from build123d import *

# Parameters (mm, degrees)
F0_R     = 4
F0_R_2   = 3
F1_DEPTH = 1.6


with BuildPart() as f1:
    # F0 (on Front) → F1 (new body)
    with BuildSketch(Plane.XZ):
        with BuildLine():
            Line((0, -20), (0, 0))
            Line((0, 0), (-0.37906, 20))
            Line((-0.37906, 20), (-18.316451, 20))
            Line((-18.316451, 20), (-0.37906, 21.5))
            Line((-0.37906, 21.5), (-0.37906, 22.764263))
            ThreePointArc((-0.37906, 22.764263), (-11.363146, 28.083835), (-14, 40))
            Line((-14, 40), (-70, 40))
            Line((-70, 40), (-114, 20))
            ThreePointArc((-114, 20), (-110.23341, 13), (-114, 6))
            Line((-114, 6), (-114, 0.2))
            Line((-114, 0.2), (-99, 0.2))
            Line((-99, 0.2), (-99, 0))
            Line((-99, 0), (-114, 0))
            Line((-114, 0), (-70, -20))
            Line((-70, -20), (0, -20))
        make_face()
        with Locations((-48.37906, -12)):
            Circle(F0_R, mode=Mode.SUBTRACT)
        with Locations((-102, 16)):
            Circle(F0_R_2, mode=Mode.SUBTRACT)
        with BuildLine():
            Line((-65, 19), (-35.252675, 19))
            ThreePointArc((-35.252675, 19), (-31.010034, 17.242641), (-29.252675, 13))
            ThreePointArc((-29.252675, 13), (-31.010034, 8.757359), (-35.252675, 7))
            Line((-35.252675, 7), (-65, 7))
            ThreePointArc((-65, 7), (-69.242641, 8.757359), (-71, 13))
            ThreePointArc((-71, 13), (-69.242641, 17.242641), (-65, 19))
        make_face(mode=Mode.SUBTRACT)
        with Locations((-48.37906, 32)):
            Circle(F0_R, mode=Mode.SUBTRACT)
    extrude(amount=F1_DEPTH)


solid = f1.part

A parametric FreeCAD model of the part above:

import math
import FreeCAD as App
import Part
import Sketcher

V = App.Vector
Q = App.Units.Quantity

doc = App.newDocument("Part")
body = doc.addObject("PartDesign::Body", "Body")

sketch1 = body.newObject("Sketcher::SketchObject", "Sketch")
sketch1.AttachmentSupport = (doc.getObject("XZ_Plane"), [""])
sketch1.MapMode = "FlatFace"
sketch1.addGeometry(Part.LineSegment(V(0, -20, 0), V(0, 0, 0)), False)
sketch1.addGeometry(Part.LineSegment(V(0, 0, 0), V(-0.38, 20, 0)), False)
sketch1.addGeometry(Part.LineSegment(V(-0.38, 20, 0), V(-18.32, 20, 0)), False)
sketch1.addGeometry(Part.LineSegment(V(-18.32, 20, 0), V(-0.38, 21.5, 0)), False)
sketch1.addGeometry(Part.LineSegment(V(-0.38, 21.5, 0), V(-0.38, 22.76, 0)), False)
sketch1.addGeometry(Part.ArcOfCircle(Part.Circle(V(-0.38, 36.76, 0), V(0, 0, 1), 14), math.radians(167), math.radians(270)), False)
sketch1.addGeometry(Part.LineSegment(V(-14, 40, 0), V(-70, 40, 0)), False)
sketch1.addGeometry(Part.LineSegment(V(-70, 40, 0), V(-114, 20, 0)), False)
sketch1.addGeometry(Part.ArcOfCircle(Part.Circle(V(-118.62, 13, 0), V(0, 0, 1), 8.39), math.radians(-57), math.radians(57)), False)
sketch1.addGeometry(Part.LineSegment(V(-114, 6, 0), V(-114, 0.2, 0)), False)
sketch1.addGeometry(Part.LineSegment(V(-114, 0.2, 0), V(-99, 0.2, 0)), False)
sketch1.addGeometry(Part.LineSegment(V(-99, 0.2, 0), V(-99, 0, 0)), False)
sketch1.addGeometry(Part.LineSegment(V(-99, 0, 0), V(-114, 0, 0)), False)
sketch1.addGeometry(Part.LineSegment(V(-114, 0, 0), V(-70, -20, 0)), False)
sketch1.addGeometry(Part.LineSegment(V(-70, -20, 0), V(0, -20, 0)), False)
sketch1.addGeometry(Part.Circle(V(-48.38, -12, 0), V(0, 0, 1), 4), False)
sketch1.addGeometry(Part.Circle(V(-102, 16, 0), V(0, 0, 1), 3), False)
sketch1.addGeometry(Part.ArcOfCircle(Part.Circle(V(-65, 13, 0), V(0, 0, 1), 6), math.radians(90), math.radians(180)), False)
sketch1.addGeometry(Part.LineSegment(V(-65, 19, 0), V(-35.25, 19, 0)), False)
sketch1.addGeometry(Part.ArcOfCircle(Part.Circle(V(-35.25, 13, 0), V(0, 0, 1), 6), math.radians(0), math.radians(90)), False)
sketch1.addGeometry(Part.ArcOfCircle(Part.Circle(V(-35.25, 13, 0), V(0, 0, 1), 6), math.radians(-90), math.radians(0)), False)
sketch1.addGeometry(Part.LineSegment(V(-35.25, 7, 0), V(-65, 7, 0)), False)
sketch1.addGeometry(Part.ArcOfCircle(Part.Circle(V(-65, 13, 0), V(0, 0, 1), 6), math.radians(180), math.radians(270)), False)
sketch1.addGeometry(Part.Circle(V(-48.38, 32, 0), V(0, 0, 1), 4), False)
sketch1.addConstraint(Sketcher.Constraint("Coincident", 0, 2, 1, 1))
sketch1.addConstraint(Sketcher.Constraint("Coincident", 1, 2, 2, 1))
sketch1.addConstraint(Sketcher.Constraint("Coincident", 2, 2, 3, 1))
sketch1.addConstraint(Sketcher.Constraint("Coincident", 3, 2, 4, 1))
sketch1.addConstraint(Sketcher.Constraint("Coincident", 4, 2, 5, 2))
sketch1.addConstraint(Sketcher.Constraint("Coincident", 5, 1, 6, 1))
sketch1.addConstraint(Sketcher.Constraint("Coincident", 6, 2, 7, 1))
sketch1.addConstraint(Sketcher.Constraint("Coincident", 7, 2, 8, 2))
sketch1.addConstraint(Sketcher.Constraint("Coincident", 8, 1, 9, 1))
sketch1.addConstraint(Sketcher.Constraint("Coincident", 9, 2, 10, 1))
sketch1.addConstraint(Sketcher.Constraint("Coincident", 10, 2, 11, 1))
sketch1.addConstraint(Sketcher.Constraint("Coincident", 11, 2, 12, 1))
sketch1.addConstraint(Sketcher.Constraint("Coincident", 12, 2, 13, 1))
sketch1.addConstraint(Sketcher.Constraint("Coincident", 13, 2, 14, 1))
sketch1.addConstraint(Sketcher.Constraint("Coincident", 14, 2, 0, 1))
sketch1.addConstraint(Sketcher.Constraint("Tangent", 17, 1, 18, 1))
sketch1.addConstraint(Sketcher.Constraint("Tangent", 18, 2, 19, 2))
sketch1.addConstraint(Sketcher.Constraint("Tangent", 19, 1, 20, 2))
sketch1.addConstraint(Sketcher.Constraint("Tangent", 20, 1, 21, 1))
sketch1.addConstraint(Sketcher.Constraint("Tangent", 21, 2, 22, 2))
sketch1.addConstraint(Sketcher.Constraint("Tangent", 22, 1, 17, 2))
sketch1.addConstraint(Sketcher.Constraint("Vertical", 0))
sketch1.addConstraint(Sketcher.Constraint("Horizontal", 2))
sketch1.addConstraint(Sketcher.Constraint("Vertical", 4))
sketch1.addConstraint(Sketcher.Constraint("Horizontal", 6))
sketch1.addConstraint(Sketcher.Constraint("Vertical", 9))
sketch1.addConstraint(Sketcher.Constraint("Horizontal", 10))
sketch1.addConstraint(Sketcher.Constraint("Vertical", 11))
sketch1.addConstraint(Sketcher.Constraint("Horizontal", 12))
sketch1.addConstraint(Sketcher.Constraint("Horizontal", 14))
sketch1.addConstraint(Sketcher.Constraint("Horizontal", 18))
sketch1.addConstraint(Sketcher.Constraint("Horizontal", 21))
sketch1.addConstraint(Sketcher.Constraint("Coincident", 0, 2, -1, 1))
sketch1.addConstraint(Sketcher.Constraint("Equal", 17, 19))
sketch1.addConstraint(Sketcher.Constraint("Equal", 19, 20))
sketch1.addConstraint(Sketcher.Constraint("Equal", 15, 23))
sketch1.addConstraint(Sketcher.Constraint("PointOnObject", 11, 2, -1))
sketch1.addConstraint(Sketcher.Constraint("Horizontal", 8, 3, 17, 3))
sketch1.addConstraint(Sketcher.Constraint("Horizontal", 2, 2, 7, 2))
sketch1.addConstraint(Sketcher.Constraint("Horizontal", 22, 3, 19, 1))
sketch1.addConstraint(Sketcher.Constraint("Horizontal", 19, 1, 22, 1))
sketch1.addConstraint(Sketcher.Constraint("Vertical", 15, 3, 23, 3))
sketch1.addConstraint(Sketcher.Constraint("Vertical", 5, 3, 1, 2))
sketch1.addConstraint(Sketcher.Constraint("Vertical", 1, 2, 3, 2))
sketch1.addConstraint(Sketcher.Constraint("Vertical", 7, 2, 8, 1))
sketch1.addConstraint(Sketcher.Constraint("Vertical", 9, 2, 12, 2))
sketch1.addConstraint(Sketcher.Constraint("Vertical", 6, 2, 13, 2))
sketch1.addConstraint(Sketcher.Constraint("Equal", 7, 13))
sketch1.addConstraint(Sketcher.Constraint("Diameter", 15, Q("8 mm")))
sketch1.addConstraint(Sketcher.Constraint("Diameter", 16, Q("6 mm")))
sketch1.addConstraint(Sketcher.Constraint("Radius", 5, Q("14.000001 mm")))
sketch1.addConstraint(Sketcher.Constraint("Radius", 17, Q("5.999999 mm")))
sketch1.addConstraint(Sketcher.Constraint("DistanceX", 6, 2, 6, 1, Q("56 mm")))
sketch1.addConstraint(Sketcher.Constraint("DistanceX", 10, 1, 10, 2, Q("15 mm")))
sketch1.addConstraint(Sketcher.Constraint("DistanceX", 14, 1, 14, 2, Q("70 mm")))
sketch1.addConstraint(Sketcher.Constraint("DistanceY", 0, 1, 0, 2, Q("20 mm")))
sketch1.addConstraint(Sketcher.Constraint("Distance", 3, Q("18 mm")))
sketch1.addConstraint(Sketcher.Constraint("DistanceY", 9, 2, 9, 1, Q("5.8 mm")))
sketch1.addConstraint(Sketcher.Constraint("DistanceY", 11, 2, 11, 1, Q("0.2 mm")))
sketch1.addConstraint(Sketcher.Constraint("DistanceY", -1, 1, 8, 3, Q("13 mm")))
sketch1.addConstraint(Sketcher.Constraint("DistanceY", 15, 3, -1, 1, Q("12 mm")))
sketch1.addConstraint(Sketcher.Constraint("DistanceX", 16, 3, -1, 1, Q("102 mm")))
sketch1.addConstraint(Sketcher.Constraint("DistanceY", -1, 1, 16, 3, Q("16 mm")))
sketch1.addConstraint(Sketcher.Constraint("DistanceX", 17, 3, -1, 1, Q("65.000001 mm")))
sketch1.addConstraint(Sketcher.Constraint("DistanceY", -1, 1, 23, 3, Q("32 mm")))
sketch1.addConstraint(Sketcher.Constraint("DistanceX", 7, 2, -1, 1, Q("114 mm")))
sketch1.addConstraint(Sketcher.Constraint("DistanceX", 15, 3, 5, 3, Q("48.000002 mm")))
sketch1.addConstraint(Sketcher.Constraint("DistanceY", -1, 1, 3, 2, Q("21.5 mm")))
sketch1.addConstraint(Sketcher.Constraint("Radius", 8, Q("8.387852 mm")))
sketch1.addConstraint(Sketcher.Constraint("DistanceX", 18, 1, 18, 2, Q("29.747325 mm")))
sketch1.addConstraint(Sketcher.Constraint("DistanceY", 4, 1, 4, 2, Q("1.264263 mm")))
pad1 = body.newObject("PartDesign::Pad", "Pad")
pad1.Profile = sketch1
pad1.Length = 1.6

doc.recompute()
